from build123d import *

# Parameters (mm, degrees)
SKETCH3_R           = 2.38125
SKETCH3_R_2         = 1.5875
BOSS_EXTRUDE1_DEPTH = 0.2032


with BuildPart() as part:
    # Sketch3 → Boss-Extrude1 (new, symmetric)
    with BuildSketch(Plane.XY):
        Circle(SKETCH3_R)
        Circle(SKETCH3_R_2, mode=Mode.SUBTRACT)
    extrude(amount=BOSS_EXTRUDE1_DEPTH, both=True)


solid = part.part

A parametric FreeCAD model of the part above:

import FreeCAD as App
import Part
import Sketcher
from FreeCAD import Vector
Q = App.Units.Quantity

doc = App.newDocument("Part")
body = doc.addObject("PartDesign::Body", "Body")

sketch1 = body.newObject("Sketcher::SketchObject", "Sketch")
sketch1.AttachmentSupport = (doc.getObject("XY_Plane"), [""])
sketch1.MapMode = "FlatFace"
sketch1.addGeometry([
    Part.Circle(Vector(0, 0, 0), Vector(0, 0, 1), 2.4),
    Part.Circle(Vector(0, 0, 0), Vector(0, 0, 1), 1.6),
], False)
sketch1.addConstraint([
    Sketcher.Constraint("Coincident", 0, 3, -1, 1),
    Sketcher.Constraint("Coincident", 1, 3, -1, 1),
    Sketcher.Constraint("Diameter", 0, Q("0.1875 in")),
    Sketcher.Constraint("Diameter", 1, Q("0.125 in")),
])
pad1 = body.newObject("PartDesign::Pad", "Pad")
pad1.Profile = sketch1
pad1.Length = Q("0.016 in")
pad1.Midplane = True

doc.recompute()
